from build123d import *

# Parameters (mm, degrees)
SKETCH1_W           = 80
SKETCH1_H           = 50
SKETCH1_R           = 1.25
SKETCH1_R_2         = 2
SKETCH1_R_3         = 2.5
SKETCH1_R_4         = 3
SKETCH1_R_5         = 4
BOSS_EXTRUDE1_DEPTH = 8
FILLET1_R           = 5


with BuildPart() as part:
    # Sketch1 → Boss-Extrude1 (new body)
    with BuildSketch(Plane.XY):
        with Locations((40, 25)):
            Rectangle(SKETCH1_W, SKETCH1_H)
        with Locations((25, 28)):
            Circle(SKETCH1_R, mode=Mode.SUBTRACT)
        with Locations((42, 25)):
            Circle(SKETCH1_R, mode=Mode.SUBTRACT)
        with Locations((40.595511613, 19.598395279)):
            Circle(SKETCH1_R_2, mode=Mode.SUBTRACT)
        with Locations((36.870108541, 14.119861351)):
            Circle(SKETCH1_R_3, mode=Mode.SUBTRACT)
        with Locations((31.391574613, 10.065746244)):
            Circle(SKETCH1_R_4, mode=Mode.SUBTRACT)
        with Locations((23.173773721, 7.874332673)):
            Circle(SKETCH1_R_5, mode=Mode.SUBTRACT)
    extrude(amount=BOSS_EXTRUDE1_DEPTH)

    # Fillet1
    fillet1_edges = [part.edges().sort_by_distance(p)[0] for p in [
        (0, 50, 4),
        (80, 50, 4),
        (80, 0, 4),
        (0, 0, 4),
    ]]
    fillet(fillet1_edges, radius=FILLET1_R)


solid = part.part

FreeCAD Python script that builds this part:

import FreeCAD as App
import Part
import Sketcher
from FreeCAD import Vector


def edges_at(feature, points):
    """Names of the edges that pass closest to the given points."""
    edges = feature.Shape.Edges
    near = lambda p: min(range(len(edges)), key=lambda i: edges[i].distToShape(Part.Vertex(*p))[0])
    return sorted({f"Edge{near(p) + 1}" for p in points})

doc = App.newDocument("Part")
params = doc.addObject("Spreadsheet::Sheet", "Params")
for row, (alias, value) in enumerate([
    ("sketch1_diameter", "8 mm"),
    ("sketch1_diameter2", "6 mm"),
    ("sketch1_diameter3", "5 mm"),
    ("sketch1_diameter4", "4 mm"),
    ("sketch1_diameter5", "2.5 mm"),
    ("pad1_length", "8 mm"),
    ("fillet_radius", "5 mm"),
], start=1):
    params.set(f"A{row}", alias)
    params.set(f"B{row}", "=" + value)
    params.setAlias(f"B{row}", alias)

body = doc.addObject("PartDesign::Body", "Body")

# Sketch on XY plane
sketch1 = doc.addObject("Sketcher::SketchObject", "Sketch")
body.addObject(sketch1)
sketch1.AttachmentSupport = (doc.XY_Plane, [""])
sketch1.MapMode = "FlatFace"
sketch1.addGeometry(Part.LineSegment(Vector(0, 50, 0), Vector(0, 0, 0)), False)
sketch1.addGeometry(Part.LineSegment(Vector(0, 0, 0), Vector(80, 0, 0)), False)
sketch1.addGeometry(Part.LineSegment(Vector(80, 0, 0), Vector(80, 50, 0)), False)
sketch1.addGeometry(Part.LineSegment(Vector(80, 50, 0), Vector(0, 50, 0)), False)
sketch1.addGeometry(Part.Circle(Vector(23.2, 7.9, 0), Vector(0, 0, 1), 4), False)
sketch1.addGeometry(Part.Circle(Vector(31.4, 10.1, 0), Vector(0, 0, 1), 3), False)
sketch1.addGeometry(Part.Circle(Vector(36.9, 14.1, 0), Vector(0, 0, 1), 2.5), False)
sketch1.addGeometry(Part.Circle(Vector(25, 28, 0), Vector(0, 0, 1), 1.2), False)
sketch1.addGeometry(Part.Circle(Vector(40.6, 19.6, 0), Vector(0, 0, 1), 2), False)
sketch1.addGeometry(Part.Circle(Vector(42, 25, 0), Vector(0, 0, 1), 1.2), False)
sketch1.addConstraint(Sketcher.Constraint("Coincident", 0, 2, 1, 1))
sketch1.addConstraint(Sketcher.Constraint("Coincident", 1, 2, 2, 1))
sketch1.addConstraint(Sketcher.Constraint("Coincident", 2, 2, 3, 1))
sketch1.addConstraint(Sketcher.Constraint("Coincident", 3, 2, 0, 1))
sketch1.addConstraint(Sketcher.Constraint("Vertical", 0))
sketch1.addConstraint(Sketcher.Constraint("Horizontal", 1))
sketch1.addConstraint(Sketcher.Constraint("Vertical", 2))
sketch1.addConstraint(Sketcher.Constraint("Horizontal", 3))
sketch1.addConstraint(Sketcher.Constraint("Coincident", 0, 2, -1, 1))
sketch1.addConstraint(Sketcher.Constraint("Equal", 7, 9))
sketch1.addConstraint(Sketcher.Constraint("Diameter", 4, 8.0))
sketch1.addConstraint(Sketcher.Constraint("Diameter", 5, 6.0))
sketch1.addConstraint(Sketcher.Constraint("Diameter", 6, 5.0))
sketch1.addConstraint(Sketcher.Constraint("Diameter", 8, 4.0))
sketch1.addConstraint(Sketcher.Constraint("Diameter", 7, 2.5))
sketch1.addConstraint(Sketcher.Constraint("DistanceX", 1, 1, 1, 2, 80.0))
sketch1.addConstraint(Sketcher.Constraint("DistanceY", 0, 2, 0, 1, 50.0))
sketch1.addConstraint(Sketcher.Constraint("DistanceX", -1, 1, 7, 3, 25.0))
sketch1.addConstraint(Sketcher.Constraint("DistanceY", -1, 1, 7, 3, 28.0))
sketch1.addConstraint(Sketcher.Constraint("DistanceX", -1, 1, 9, 3, 42.0))
sketch1.addConstraint(Sketcher.Constraint("DistanceY", -1, 1, 9, 3, 25.0))
sketch1.addConstraint(Sketcher.Constraint("DistanceX", 4, 3, 5, 3, 8.217801))
sketch1.addConstraint(Sketcher.Constraint("DistanceX", -1, 1, 6, 3, 36.870109))
sketch1.addConstraint(Sketcher.Constraint("DistanceY", -1, 1, 6, 3, 14.119861))
sketch1.addConstraint(Sketcher.Constraint("DistanceX", -1, 1, 8, 3, 40.595512))
sketch1.addConstraint(Sketcher.Constraint("DistanceY", 4, 3, 6, 3, 6.245529))
sketch1.addConstraint(Sketcher.Constraint("DistanceY", 5, 3, 8, 3, 9.532649))
sketch1.addConstraint(Sketcher.Constraint("DistanceX", -1, 1, 4, 3, 23.173774))
sketch1.addConstraint(Sketcher.Constraint("DistanceY", -1, 1, 5, 3, 10.065746))
sketch1.setExpression("Constraints[10]", "Params.sketch1_diameter")
sketch1.setExpression("Constraints[11]", "Params.sketch1_diameter2")
sketch1.setExpression("Constraints[12]", "Params.sketch1_diameter3")
sketch1.setExpression("Constraints[13]", "Params.sketch1_diameter4")
sketch1.setExpression("Constraints[14]", "Params.sketch1_diameter5")
pad1 = doc.addObject("PartDesign::Pad", "Pad")
body.addObject(pad1)
pad1.Profile = sketch1
pad1.setExpression("Length", "Params.pad1_length")
doc.recompute()

fillet = doc.addObject("PartDesign::Fillet", "Fillet")
body.addObject(fillet)
fillet.Base = (pad1, edges_at(pad1, [
    (0, 50, 4),
    (80, 50, 4),
    (80, 0, 4),
    (0, 0, 4),
]))
fillet.setExpression("Radius", "Params.fillet_radius")

doc.recompute()
